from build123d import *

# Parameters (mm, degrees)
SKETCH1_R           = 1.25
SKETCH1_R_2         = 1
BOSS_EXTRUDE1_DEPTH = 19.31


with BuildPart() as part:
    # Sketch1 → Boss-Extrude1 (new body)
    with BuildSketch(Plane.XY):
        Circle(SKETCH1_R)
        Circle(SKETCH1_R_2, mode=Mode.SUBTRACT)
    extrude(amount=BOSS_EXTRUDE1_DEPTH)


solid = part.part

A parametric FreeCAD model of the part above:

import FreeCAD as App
import Part
import Sketcher
Q = App.Units.Quantity

doc = App.newDocument("Part")
body = doc.addObject("PartDesign::Body", "Body")

sketch1 = body.newObject("Sketcher::SketchObject", "Sketch")
sketch1.AttachmentSupport = (doc.getObject("XY_Plane"), [""])
sketch1.MapMode = "FlatFace"
sketch1.addGeometry(Part.Circle(App.Vector(0, 0, 0), App.Vector(0, 0, 1), 1.25), False)
sketch1.addGeometry(Part.Circle(App.Vector(0, 0, 0), App.Vector(0, 0, 1), 1), False)
sketch1.addConstraint(Sketcher.Constraint("Coincident", 0, 3, -1, 1))
sketch1.addConstraint(Sketcher.Constraint("Coincident", 1, 3, -1, 1))
sketch1.addConstraint(Sketcher.Constraint("Diameter", 1, Q("2 mm")))
sketch1.addConstraint(Sketcher.Constraint("Diameter", 0, Q("2.5 mm")))
pad1 = body.newObject("PartDesign::Pad", "Pad")
pad1.Profile = sketch1
pad1.Length = 19.31

doc.recompute()
